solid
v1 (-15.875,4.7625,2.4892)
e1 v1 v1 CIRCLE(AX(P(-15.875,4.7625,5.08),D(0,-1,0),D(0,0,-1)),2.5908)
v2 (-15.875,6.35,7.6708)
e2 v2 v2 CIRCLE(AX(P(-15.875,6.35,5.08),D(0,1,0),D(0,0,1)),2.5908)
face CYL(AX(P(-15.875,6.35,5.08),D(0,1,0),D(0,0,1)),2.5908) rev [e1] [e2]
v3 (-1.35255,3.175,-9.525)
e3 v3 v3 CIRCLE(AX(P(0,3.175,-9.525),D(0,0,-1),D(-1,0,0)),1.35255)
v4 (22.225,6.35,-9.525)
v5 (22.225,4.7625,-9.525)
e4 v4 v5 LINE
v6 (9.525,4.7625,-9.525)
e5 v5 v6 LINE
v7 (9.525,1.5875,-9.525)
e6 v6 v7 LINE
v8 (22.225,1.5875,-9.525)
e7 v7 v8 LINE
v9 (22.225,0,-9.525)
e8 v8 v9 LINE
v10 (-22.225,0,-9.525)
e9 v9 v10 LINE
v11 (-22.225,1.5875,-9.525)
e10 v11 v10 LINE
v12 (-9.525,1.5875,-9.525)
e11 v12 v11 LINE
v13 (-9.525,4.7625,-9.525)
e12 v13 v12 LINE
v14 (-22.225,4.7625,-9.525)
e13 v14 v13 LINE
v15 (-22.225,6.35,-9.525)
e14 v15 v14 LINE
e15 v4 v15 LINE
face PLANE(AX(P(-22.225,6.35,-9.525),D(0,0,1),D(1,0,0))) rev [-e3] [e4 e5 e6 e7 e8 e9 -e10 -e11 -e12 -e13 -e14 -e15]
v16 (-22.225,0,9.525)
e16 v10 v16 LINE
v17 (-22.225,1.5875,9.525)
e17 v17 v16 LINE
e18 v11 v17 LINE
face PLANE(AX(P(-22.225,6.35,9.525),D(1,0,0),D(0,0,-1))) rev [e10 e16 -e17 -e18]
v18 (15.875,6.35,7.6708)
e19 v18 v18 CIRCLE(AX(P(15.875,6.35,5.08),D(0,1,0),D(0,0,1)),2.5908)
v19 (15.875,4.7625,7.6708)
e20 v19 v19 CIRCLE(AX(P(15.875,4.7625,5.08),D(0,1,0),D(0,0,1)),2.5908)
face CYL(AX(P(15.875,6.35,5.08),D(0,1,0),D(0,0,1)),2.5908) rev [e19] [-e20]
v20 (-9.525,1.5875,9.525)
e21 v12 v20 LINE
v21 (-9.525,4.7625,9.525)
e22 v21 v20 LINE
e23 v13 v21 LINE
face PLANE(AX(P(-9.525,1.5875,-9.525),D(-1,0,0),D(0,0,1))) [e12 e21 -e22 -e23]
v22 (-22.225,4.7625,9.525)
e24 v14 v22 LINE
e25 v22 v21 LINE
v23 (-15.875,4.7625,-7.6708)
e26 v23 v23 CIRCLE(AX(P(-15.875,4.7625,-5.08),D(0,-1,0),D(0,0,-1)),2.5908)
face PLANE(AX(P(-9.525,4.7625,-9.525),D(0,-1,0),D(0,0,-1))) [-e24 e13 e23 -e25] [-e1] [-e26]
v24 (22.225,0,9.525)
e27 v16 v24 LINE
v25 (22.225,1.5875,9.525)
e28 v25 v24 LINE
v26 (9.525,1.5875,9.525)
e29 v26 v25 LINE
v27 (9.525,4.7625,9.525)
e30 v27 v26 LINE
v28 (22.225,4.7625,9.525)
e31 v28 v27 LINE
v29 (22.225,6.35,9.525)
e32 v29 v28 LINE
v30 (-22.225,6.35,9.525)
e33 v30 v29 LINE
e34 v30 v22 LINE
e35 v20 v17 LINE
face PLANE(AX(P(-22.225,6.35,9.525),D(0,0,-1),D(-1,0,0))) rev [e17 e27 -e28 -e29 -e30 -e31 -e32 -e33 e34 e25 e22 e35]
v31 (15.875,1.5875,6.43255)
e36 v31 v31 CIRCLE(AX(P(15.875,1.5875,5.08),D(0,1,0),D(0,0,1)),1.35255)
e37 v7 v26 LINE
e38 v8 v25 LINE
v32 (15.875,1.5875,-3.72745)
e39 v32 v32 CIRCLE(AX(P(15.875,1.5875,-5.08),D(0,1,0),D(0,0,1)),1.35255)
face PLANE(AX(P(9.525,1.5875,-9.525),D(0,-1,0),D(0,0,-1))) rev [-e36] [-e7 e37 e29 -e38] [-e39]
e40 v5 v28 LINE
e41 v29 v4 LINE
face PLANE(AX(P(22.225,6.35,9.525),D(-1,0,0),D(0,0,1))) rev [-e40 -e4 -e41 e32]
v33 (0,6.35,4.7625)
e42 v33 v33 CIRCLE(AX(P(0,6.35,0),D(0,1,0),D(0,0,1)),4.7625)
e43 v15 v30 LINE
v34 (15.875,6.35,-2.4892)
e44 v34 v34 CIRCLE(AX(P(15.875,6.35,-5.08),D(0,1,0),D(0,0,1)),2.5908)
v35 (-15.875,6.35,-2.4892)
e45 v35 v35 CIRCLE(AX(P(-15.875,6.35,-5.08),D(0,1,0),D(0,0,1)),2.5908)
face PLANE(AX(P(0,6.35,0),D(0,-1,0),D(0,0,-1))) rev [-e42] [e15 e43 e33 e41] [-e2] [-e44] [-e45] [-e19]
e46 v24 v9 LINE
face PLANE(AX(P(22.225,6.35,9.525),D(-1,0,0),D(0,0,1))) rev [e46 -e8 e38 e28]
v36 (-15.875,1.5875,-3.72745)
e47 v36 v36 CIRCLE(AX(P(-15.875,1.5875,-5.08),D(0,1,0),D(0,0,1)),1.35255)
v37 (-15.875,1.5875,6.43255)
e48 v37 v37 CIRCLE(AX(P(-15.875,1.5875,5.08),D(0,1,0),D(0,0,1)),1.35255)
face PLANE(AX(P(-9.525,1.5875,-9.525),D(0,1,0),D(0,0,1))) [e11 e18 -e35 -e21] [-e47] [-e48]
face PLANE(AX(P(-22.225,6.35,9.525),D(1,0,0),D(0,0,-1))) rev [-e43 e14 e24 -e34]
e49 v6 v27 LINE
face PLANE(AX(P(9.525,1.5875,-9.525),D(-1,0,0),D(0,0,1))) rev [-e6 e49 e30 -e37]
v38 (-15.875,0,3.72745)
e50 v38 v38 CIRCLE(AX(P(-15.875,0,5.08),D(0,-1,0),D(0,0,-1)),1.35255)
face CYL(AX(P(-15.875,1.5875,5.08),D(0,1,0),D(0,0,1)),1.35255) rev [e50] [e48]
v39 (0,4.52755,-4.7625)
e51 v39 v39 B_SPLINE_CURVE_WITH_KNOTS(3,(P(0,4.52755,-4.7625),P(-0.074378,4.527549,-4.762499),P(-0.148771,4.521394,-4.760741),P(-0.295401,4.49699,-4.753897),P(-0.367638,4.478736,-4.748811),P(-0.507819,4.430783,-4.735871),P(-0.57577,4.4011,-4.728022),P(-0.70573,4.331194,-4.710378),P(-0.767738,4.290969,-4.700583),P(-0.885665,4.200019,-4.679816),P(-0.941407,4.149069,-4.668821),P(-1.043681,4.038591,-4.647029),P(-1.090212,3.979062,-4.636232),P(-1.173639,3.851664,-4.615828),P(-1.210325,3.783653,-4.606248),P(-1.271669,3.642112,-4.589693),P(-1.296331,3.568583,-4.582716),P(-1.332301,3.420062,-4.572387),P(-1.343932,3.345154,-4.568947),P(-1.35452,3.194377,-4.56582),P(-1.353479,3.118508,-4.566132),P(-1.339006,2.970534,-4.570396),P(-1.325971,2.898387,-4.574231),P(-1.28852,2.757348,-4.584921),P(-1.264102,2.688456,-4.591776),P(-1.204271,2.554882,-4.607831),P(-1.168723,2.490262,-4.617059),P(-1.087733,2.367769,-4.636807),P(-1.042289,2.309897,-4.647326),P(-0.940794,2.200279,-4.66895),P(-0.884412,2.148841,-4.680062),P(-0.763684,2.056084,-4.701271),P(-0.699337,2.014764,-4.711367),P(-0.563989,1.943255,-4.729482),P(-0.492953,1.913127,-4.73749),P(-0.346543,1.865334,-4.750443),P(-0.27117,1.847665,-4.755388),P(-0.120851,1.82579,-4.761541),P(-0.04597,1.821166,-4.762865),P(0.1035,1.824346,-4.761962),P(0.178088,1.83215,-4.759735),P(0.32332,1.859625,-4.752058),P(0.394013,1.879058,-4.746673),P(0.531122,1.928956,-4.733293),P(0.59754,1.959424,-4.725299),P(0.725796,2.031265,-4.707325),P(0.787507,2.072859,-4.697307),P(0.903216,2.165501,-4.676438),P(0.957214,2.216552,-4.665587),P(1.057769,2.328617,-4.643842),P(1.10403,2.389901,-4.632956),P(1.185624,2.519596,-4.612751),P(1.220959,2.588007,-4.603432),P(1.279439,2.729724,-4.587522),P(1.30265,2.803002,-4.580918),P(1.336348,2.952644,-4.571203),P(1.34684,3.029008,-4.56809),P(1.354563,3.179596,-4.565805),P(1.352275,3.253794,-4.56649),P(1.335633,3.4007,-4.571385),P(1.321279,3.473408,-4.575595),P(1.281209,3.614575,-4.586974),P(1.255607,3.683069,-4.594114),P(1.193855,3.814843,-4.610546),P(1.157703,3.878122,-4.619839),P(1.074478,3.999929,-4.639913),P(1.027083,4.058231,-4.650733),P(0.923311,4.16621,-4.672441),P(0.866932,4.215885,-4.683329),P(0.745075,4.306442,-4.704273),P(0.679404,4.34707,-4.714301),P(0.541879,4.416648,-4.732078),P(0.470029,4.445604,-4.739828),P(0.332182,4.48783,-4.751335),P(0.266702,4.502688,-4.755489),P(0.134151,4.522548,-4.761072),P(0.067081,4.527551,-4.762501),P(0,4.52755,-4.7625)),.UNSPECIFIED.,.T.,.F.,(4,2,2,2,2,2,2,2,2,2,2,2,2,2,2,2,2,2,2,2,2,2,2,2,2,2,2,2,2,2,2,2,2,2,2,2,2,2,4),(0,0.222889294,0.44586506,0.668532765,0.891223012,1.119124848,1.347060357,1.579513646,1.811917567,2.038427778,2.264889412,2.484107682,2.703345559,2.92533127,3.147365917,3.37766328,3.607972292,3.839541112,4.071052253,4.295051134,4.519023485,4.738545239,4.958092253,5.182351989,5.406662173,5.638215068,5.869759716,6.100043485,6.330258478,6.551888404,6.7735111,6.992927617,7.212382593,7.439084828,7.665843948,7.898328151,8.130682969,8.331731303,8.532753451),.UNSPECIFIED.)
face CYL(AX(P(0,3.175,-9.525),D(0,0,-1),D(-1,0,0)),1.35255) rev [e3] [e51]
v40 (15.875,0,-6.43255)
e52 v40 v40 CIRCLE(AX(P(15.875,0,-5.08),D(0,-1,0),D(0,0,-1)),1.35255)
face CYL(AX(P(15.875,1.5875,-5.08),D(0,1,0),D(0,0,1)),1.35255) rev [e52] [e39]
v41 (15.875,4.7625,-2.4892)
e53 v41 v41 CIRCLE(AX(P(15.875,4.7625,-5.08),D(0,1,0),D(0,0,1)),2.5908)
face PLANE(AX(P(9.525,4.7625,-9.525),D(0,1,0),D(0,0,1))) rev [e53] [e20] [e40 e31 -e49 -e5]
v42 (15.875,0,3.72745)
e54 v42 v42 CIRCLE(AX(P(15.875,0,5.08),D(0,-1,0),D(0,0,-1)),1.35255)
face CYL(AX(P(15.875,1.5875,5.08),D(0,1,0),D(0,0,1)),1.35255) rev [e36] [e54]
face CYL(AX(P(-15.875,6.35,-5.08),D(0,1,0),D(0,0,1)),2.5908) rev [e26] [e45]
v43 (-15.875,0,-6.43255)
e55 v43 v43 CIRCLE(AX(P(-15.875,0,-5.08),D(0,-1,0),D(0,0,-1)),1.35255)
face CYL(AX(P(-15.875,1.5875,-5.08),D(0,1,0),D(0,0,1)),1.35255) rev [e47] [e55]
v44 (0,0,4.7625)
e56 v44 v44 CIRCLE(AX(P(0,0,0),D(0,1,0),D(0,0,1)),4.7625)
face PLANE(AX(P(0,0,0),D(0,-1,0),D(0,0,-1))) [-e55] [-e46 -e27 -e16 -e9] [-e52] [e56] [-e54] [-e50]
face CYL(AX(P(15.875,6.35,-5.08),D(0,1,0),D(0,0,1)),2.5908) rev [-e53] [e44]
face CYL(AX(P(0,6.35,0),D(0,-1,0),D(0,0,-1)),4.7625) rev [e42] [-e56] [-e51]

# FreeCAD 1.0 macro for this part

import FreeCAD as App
import Part
import Sketcher
Q = App.Units.Quantity


def add_polygon(sketch, points):
    """Adds a closed chain of lines whose ends are joined by coincident constraints."""
    first, n = sketch.GeometryCount, len(points)
    for a, b in zip(points, points[1:] + points[:1]):
        sketch.addGeometry(Part.LineSegment(App.Vector(*a, 0), App.Vector(*b, 0)), False)
    for i in range(n):
        sketch.addConstraint(Sketcher.Constraint("Coincident", first + i, 2, first + (i + 1) % n, 1))

doc = App.newDocument("Part")
body = doc.addObject("PartDesign::Body", "Body")

sketch1 = body.newObject("Sketcher::SketchObject", "Sketch")
sketch1.AttachmentSupport = (doc.getObject("XZ_Plane"), [""])
sketch1.MapMode = "FlatFace"
add_polygon(sketch1, [(-22.2, -9.5), (-22.2, 9.5), (22.2, 9.5), (22.2, -9.5)])
sketch1.addGeometry(Part.Circle(App.Vector(0, 0, 0), App.Vector(0, 0, 1), 4.8), False)
sketch1.addConstraint(Sketcher.Constraint("Vertical", 0))
sketch1.addConstraint(Sketcher.Constraint("Horizontal", 1))
sketch1.addConstraint(Sketcher.Constraint("Vertical", 2))
sketch1.addConstraint(Sketcher.Constraint("Horizontal", 3))
sketch1.addConstraint(Sketcher.Constraint("Coincident", 4, 3, -1, 1))
sketch1.addConstraint(Sketcher.Constraint("Symmetric", 0, 2, 2, 2, -1, 1))
sketch1.addConstraint(Sketcher.Constraint("Diameter", 4, Q("0.375 in")))
sketch1.addConstraint(Sketcher.Constraint("DistanceX", 1, 1, 1, 2, Q("1.75 in")))
sketch1.addConstraint(Sketcher.Constraint("DistanceY", 0, 1, 0, 2, Q("0.75 in")))
pad1 = body.newObject("PartDesign::Pad", "Pad")
pad1.Profile = sketch1
pad1.Length = Q("0.25 in")
pad1.Reversed = True

sketch2 = body.newObject("Sketcher::SketchObject", "Sketch001")
sketch2.AttachmentSupport = (doc.getObject("XY_Plane"), [""])
sketch2.MapMode = "FlatFace"
sketch2.AttachmentOffset = App.Placement(App.Vector(0, 0, -0.375 * 25.4), App.Rotation())
sketch2.addGeometry(Part.Circle(App.Vector(0, 3.2, 0), App.Vector(0, 0, 1), 1.4), False)
sketch2.addConstraint(Sketcher.Constraint("PointOnObject", 0, 3, -2))
sketch2.addConstraint(Sketcher.Constraint("Diameter", 0, Q("0.1065 in")))
sketch2.addConstraint(Sketcher.Constraint("DistanceY", -1, 1, 0, 3, Q("0.125 in")))
pocket1 = body.newObject("PartDesign::Pocket", "Pocket")
pocket1.Profile = sketch2
pocket1.Length = 4.958599
pocket1.Reversed = True

sketch3 = body.newObject("Sketcher::SketchObject", "Sketch002")
sketch3.AttachmentSupport = (doc.getObject("XY_Plane"), [""])
sketch3.MapMode = "FlatFace"
sketch3.AttachmentOffset = App.Placement(App.Vector(0, 0, 0.375 * 25.4), App.Rotation())
add_polygon(sketch3, [(9.5, 4.8), (9.5, 1.6), (22.2, 1.6), (22.2, 4.8)])
sketch3.addConstraint(Sketcher.Constraint("Vertical", 0))
sketch3.addConstraint(Sketcher.Constraint("Horizontal", 1))
sketch3.addConstraint(Sketcher.Constraint("Vertical", 2))
sketch3.addConstraint(Sketcher.Constraint("Horizontal", 3))
sketch3.addConstraint(Sketcher.Constraint("DistanceX", 1, 1, 1, 2, Q("0.5 in")))
sketch3.addConstraint(Sketcher.Constraint("DistanceY", 0, 2, 0, 1, Q("0.125 in")))
sketch3.addConstraint(Sketcher.Constraint("DistanceX", -1, 1, 0, 2, Q("0.375 in")))
sketch3.addConstraint(Sketcher.Constraint("DistanceY", -1, 1, 0, 2, Q("0.0625 in")))
pocket2 = body.newObject("PartDesign::Pocket", "Pocket001")
pocket2.Profile = sketch3
pocket2.Type = "ThroughAll"

sketch4 = body.newObject("Sketcher::SketchObject", "Sketch003")
sketch4.AttachmentSupport = (doc.getObject("XZ_Plane"), [""])
sketch4.MapMode = "FlatFace"
sketch4.AttachmentOffset = App.Placement(App.Vector(0, 0, -0.25 * 25.4), App.Rotation())
sketch4.addGeometry(Part.Circle(App.Vector(15.9, -5.1, 0), App.Vector(0, 0, 1), 2.6), False)
sketch4.addGeometry(Part.Circle(App.Vector(15.9, 5.1, 0), App.Vector(0, 0, 1), 2.6), False)
sketch4.addConstraint(Sketcher.Constraint("Equal", 0, 1))
sketch4.addConstraint(Sketcher.Constraint("Symmetric", 0, 3, 1, 3, -1))
sketch4.addConstraint(Sketcher.Constraint("Diameter", 0, Q("0.204 in")))
sketch4.addConstraint(Sketcher.Constraint("DistanceY", 0, 3, -1, 1, Q("0.2 in")))
sketch4.addConstraint(Sketcher.Constraint("DistanceX", -1, 1, 0, 3, Q("0.625 in")))
doc.recompute()
hole = body.newObject("PartDesign::Hole", "Hole")
hole.Profile = sketch4
hole.ThreadType = "None"
hole.Diameter = Q("0.204 in")
hole.DepthType = "Dimension"
hole.Depth = Q("0.0625 in")
hole.DrillPoint = "Flat"
hole.Reversed = True

sketch5 = body.newObject("Sketcher::SketchObject", "Sketch004")
sketch5.AttachmentSupport = (doc.getObject("XZ_Plane"), [""])
sketch5.MapMode = "FlatFace"
sketch5.AttachmentOffset = App.Placement(App.Vector(0, 0, -0.0625 * 25.4), App.Rotation())
sketch5.addGeometry(Part.Circle(App.Vector(15.9, -5.1, 0), App.Vector(0, 0, 1), 1.4), False)
sketch5.addGeometry(Part.Circle(App.Vector(15.9, 5.1, 0), App.Vector(0, 0, 1), 1.4), False)
sketch5.addConstraint(Sketcher.Constraint("Equal", 0, 1))
sketch5.addConstraint(Sketcher.Constraint("Symmetric", 0, 3, 1, 3, -1))
sketch5.addConstraint(Sketcher.Constraint("Diameter", 0, Q("0.1065 in")))
sketch5.addConstraint(Sketcher.Constraint("DistanceY", 0, 3, -1, 1, Q("0.2 in")))
sketch5.addConstraint(Sketcher.Constraint("DistanceX", -1, 1, 0, 3, Q("0.625 in")))
doc.recompute()
hole2 = body.newObject("PartDesign::Hole", "Hole001")
hole2.Profile = sketch5
hole2.ThreadType = "None"
hole2.Diameter = Q("0.1065 in")
hole2.DepthType = "ThroughAll"
hole2.Reversed = True
doc.recompute()

mirrored = body.newObject("PartDesign::Mirrored", "Mirrored")
mirrored.Originals = [pocket2, hole, hole2]
mirrored.MirrorPlane = (doc.getObject("YZ_Plane"), [""])
body.Tip = mirrored

doc.recompute()
